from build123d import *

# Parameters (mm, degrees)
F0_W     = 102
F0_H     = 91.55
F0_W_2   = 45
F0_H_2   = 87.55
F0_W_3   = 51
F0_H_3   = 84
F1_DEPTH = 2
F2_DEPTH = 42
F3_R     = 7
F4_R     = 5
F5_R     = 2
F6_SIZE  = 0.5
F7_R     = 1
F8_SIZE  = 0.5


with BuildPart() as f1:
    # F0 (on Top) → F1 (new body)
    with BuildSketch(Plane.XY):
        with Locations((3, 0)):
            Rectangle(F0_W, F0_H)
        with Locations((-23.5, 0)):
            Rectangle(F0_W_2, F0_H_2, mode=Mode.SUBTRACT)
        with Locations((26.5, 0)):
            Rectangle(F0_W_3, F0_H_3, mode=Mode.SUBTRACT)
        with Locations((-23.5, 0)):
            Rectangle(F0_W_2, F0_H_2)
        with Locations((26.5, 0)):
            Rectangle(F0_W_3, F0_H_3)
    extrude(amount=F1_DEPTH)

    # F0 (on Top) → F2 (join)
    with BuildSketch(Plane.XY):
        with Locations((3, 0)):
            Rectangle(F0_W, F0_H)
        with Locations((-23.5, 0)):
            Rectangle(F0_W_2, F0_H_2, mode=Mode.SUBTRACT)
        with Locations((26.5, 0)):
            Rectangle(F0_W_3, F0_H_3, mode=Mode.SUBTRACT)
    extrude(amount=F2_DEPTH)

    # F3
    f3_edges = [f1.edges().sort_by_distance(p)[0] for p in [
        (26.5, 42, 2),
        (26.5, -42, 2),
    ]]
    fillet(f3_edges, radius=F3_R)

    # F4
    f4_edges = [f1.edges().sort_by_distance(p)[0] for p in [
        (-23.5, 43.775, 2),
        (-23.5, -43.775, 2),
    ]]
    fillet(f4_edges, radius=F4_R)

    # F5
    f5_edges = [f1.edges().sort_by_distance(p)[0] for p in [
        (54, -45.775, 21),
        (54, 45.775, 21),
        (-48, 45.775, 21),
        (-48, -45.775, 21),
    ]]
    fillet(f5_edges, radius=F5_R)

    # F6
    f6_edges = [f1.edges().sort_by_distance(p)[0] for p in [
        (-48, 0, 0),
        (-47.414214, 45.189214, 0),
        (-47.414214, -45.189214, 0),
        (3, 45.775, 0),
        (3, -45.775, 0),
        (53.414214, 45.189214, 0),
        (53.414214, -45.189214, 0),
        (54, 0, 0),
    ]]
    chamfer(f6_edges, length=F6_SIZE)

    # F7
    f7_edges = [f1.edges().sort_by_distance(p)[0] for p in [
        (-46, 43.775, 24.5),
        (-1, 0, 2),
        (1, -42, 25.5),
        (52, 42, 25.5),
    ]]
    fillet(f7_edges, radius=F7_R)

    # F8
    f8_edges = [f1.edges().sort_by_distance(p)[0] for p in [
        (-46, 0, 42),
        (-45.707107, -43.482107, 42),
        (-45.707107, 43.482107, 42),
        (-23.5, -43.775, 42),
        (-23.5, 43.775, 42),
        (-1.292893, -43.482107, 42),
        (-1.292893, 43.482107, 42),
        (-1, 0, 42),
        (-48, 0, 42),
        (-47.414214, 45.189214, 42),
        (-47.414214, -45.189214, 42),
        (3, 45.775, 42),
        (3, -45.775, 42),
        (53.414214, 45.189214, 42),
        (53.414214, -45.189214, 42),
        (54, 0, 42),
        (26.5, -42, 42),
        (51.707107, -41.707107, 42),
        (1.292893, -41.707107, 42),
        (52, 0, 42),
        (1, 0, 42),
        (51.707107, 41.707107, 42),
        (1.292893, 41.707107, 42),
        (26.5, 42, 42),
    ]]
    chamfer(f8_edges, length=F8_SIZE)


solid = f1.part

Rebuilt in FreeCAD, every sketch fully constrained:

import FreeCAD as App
import Part
import Sketcher
Q = App.Units.Quantity


def edges_at(feature, points):
    """Names of the edges that pass closest to the given points."""
    edges = feature.Shape.Edges
    near = lambda p: min(range(len(edges)), key=lambda i: edges[i].distToShape(Part.Vertex(*p))[0])
    return sorted({f"Edge{near(p) + 1}" for p in points})


def add_polygon(sketch, points):
    """Adds a closed chain of lines whose ends are joined by coincident constraints."""
    first, n = sketch.GeometryCount, len(points)
    for a, b in zip(points, points[1:] + points[:1]):
        sketch.addGeometry(Part.LineSegment(App.Vector(*a, 0), App.Vector(*b, 0)), False)
    for i in range(n):
        sketch.addConstraint(Sketcher.Constraint("Coincident", first + i, 2, first + (i + 1) % n, 1))

doc = App.newDocument("Part")
body = doc.addObject("PartDesign::Body", "Body")

sketch1 = body.newObject("Sketcher::SketchObject", "Sketch")
sketch1.AttachmentSupport = (doc.getObject("XY_Plane"), [""])
sketch1.MapMode = "FlatFace"
add_polygon(sketch1, [(-48, 46), (-48, -46), (54, -46), (54, 46)])
sketch1.addConstraint(Sketcher.Constraint("Vertical", 0))
sketch1.addConstraint(Sketcher.Constraint("Horizontal", 1))
sketch1.addConstraint(Sketcher.Constraint("Vertical", 2))
sketch1.addConstraint(Sketcher.Constraint("Horizontal", 3))
sketch1.addConstraint(Sketcher.Constraint("DistanceX", 1, 1, 1, 2, Q("102 mm")))
sketch1.addConstraint(Sketcher.Constraint("DistanceX", 0, 2, -1, 1, Q("48 mm")))
sketch1.addConstraint(Sketcher.Constraint("DistanceY", 0, 2, 0, 1, Q("91.55 mm")))
sketch1.addConstraint(Sketcher.Constraint("DistanceY", 0, 2, -1, 1, Q("45.775 mm")))
pad1 = body.newObject("PartDesign::Pad", "Pad")
pad1.Profile = sketch1
pad1.Length = 2

sketch2 = body.newObject("Sketcher::SketchObject", "Sketch001")
sketch2.AttachmentSupport = (doc.getObject("XY_Plane"), [""])
sketch2.MapMode = "FlatFace"
add_polygon(sketch2, [(-48, 46), (-48, -46), (54, -46), (54, 46)])
add_polygon(sketch2, [(-1, -44), (-46, -44), (-46, 44), (-1, 44)])
add_polygon(sketch2, [(52, -42), (1, -42), (1, 42), (52, 42)])
sketch2.addConstraint(Sketcher.Constraint("Vertical", 0))
sketch2.addConstraint(Sketcher.Constraint("Horizontal", 1))
sketch2.addConstraint(Sketcher.Constraint("Vertical", 2))
sketch2.addConstraint(Sketcher.Constraint("Horizontal", 3))
sketch2.addConstraint(Sketcher.Constraint("Horizontal", 4))
sketch2.addConstraint(Sketcher.Constraint("Vertical", 5))
sketch2.addConstraint(Sketcher.Constraint("Horizontal", 6))
sketch2.addConstraint(Sketcher.Constraint("Vertical", 7))
sketch2.addConstraint(Sketcher.Constraint("Horizontal", 8))
sketch2.addConstraint(Sketcher.Constraint("Vertical", 9))
sketch2.addConstraint(Sketcher.Constraint("Horizontal", 10))
sketch2.addConstraint(Sketcher.Constraint("Vertical", 11))
sketch2.addConstraint(Sketcher.Constraint("DistanceX", 1, 1, 1, 2, Q("102 mm")))
sketch2.addConstraint(Sketcher.Constraint("DistanceX", 4, 2, 4, 1, Q("45 mm")))
sketch2.addConstraint(Sketcher.Constraint("DistanceX", 8, 2, 8, 1, Q("51 mm")))
sketch2.addConstraint(Sketcher.Constraint("DistanceY", 9, 1, 9, 2, Q("84 mm")))
sketch2.addConstraint(Sketcher.Constraint("DistanceX", 0, 2, -1, 1, Q("48 mm")))
sketch2.addConstraint(Sketcher.Constraint("DistanceX", 4, 2, -1, 1, Q("46 mm")))
sketch2.addConstraint(Sketcher.Constraint("DistanceX", -1, 1, 8, 2, Q("1 mm")))
sketch2.addConstraint(Sketcher.Constraint("DistanceY", 8, 2, -1, 1, Q("42 mm")))
sketch2.addConstraint(Sketcher.Constraint("DistanceY", 0, 2, 4, 2, Q("2 mm")))
sketch2.addConstraint(Sketcher.Constraint("DistanceY", 5, 2, 3, 2, Q("2 mm")))
sketch2.addConstraint(Sketcher.Constraint("DistanceY", 0, 2, 0, 1, Q("91.55 mm")))
sketch2.addConstraint(Sketcher.Constraint("DistanceY", 0, 2, -1, 1, Q("45.775 mm")))
pad2 = body.newObject("PartDesign::Pad", "Pad001")
pad2.Profile = sketch2
pad2.Length = 42
doc.recompute()

fillet = body.newObject("PartDesign::Fillet", "Fillet")
fillet.Base = (pad2, edges_at(pad2, [(26.5, 42, 2), (26.5, -42, 2)]))
fillet.Radius = 7
doc.recompute()

fillet2 = body.newObject("PartDesign::Fillet", "Fillet001")
fillet2.Base = (fillet, edges_at(fillet, [(-23.5, 43.775, 2), (-23.5, -43.775, 2)]))
fillet2.Radius = 5
doc.recompute()

fillet3 = body.newObject("PartDesign::Fillet", "Fillet002")
fillet3.Base = (fillet2, edges_at(fillet2, [
    (54, -45.775, 21),
    (54, 45.775, 21),
    (-48, 45.775, 21),
    (-48, -45.775, 21),
]))
fillet3.Radius = 2
doc.recompute()

chamfer = body.newObject("PartDesign::Chamfer", "Chamfer")
chamfer.Base = (fillet3, edges_at(fillet3, [
    (-48, 0, 0),
    (-47.414, 45.189, 0),
    (-47.414, -45.189, 0),
    (3, 45.775, 0),
    (3, -45.775, 0),
    (53.414, 45.189, 0),
    (53.414, -45.189, 0),
    (54, 0, 0),
]))
chamfer.Size = 0.5
doc.recompute()

fillet4 = body.newObject("PartDesign::Fillet", "Fillet003")
fillet4.Base = (chamfer, edges_at(chamfer, [
    (-46, 43.775, 24.5),
    (-1, 0, 2),
    (1, -42, 25.5),
    (52, 42, 25.5),
]))
fillet4.Radius = 1
doc.recompute()

chamfer2 = body.newObject("PartDesign::Chamfer", "Chamfer001")
chamfer2.Base = (fillet4, edges_at(fillet4, [
    (-46, 0, 42),
    (-45.707, -43.482, 42),
    (-45.707, 43.482, 42),
    (-23.5, -43.775, 42),
    (-23.5, 43.775, 42),
    (-1.293, -43.482, 42),
    (-1.293, 43.482, 42),
    (-1, 0, 42),
    (-48, 0, 42),
    (-47.414, 45.189, 42),
    (-47.414, -45.189, 42),
    (3, 45.775, 42),
    (3, -45.775, 42),
    (53.414, 45.189, 42),
    (53.414, -45.189, 42),
    (54, 0, 42),
    (26.5, -42, 42),
    (51.707, -41.707, 42),
    (1.293, -41.707, 42),
    (52, 0, 42),
    (1, 0, 42),
    (51.707, 41.707, 42),
    (1.293, 41.707, 42),
    (26.5, 42, 42),
]))
chamfer2.Size = 0.5

doc.recompute()
